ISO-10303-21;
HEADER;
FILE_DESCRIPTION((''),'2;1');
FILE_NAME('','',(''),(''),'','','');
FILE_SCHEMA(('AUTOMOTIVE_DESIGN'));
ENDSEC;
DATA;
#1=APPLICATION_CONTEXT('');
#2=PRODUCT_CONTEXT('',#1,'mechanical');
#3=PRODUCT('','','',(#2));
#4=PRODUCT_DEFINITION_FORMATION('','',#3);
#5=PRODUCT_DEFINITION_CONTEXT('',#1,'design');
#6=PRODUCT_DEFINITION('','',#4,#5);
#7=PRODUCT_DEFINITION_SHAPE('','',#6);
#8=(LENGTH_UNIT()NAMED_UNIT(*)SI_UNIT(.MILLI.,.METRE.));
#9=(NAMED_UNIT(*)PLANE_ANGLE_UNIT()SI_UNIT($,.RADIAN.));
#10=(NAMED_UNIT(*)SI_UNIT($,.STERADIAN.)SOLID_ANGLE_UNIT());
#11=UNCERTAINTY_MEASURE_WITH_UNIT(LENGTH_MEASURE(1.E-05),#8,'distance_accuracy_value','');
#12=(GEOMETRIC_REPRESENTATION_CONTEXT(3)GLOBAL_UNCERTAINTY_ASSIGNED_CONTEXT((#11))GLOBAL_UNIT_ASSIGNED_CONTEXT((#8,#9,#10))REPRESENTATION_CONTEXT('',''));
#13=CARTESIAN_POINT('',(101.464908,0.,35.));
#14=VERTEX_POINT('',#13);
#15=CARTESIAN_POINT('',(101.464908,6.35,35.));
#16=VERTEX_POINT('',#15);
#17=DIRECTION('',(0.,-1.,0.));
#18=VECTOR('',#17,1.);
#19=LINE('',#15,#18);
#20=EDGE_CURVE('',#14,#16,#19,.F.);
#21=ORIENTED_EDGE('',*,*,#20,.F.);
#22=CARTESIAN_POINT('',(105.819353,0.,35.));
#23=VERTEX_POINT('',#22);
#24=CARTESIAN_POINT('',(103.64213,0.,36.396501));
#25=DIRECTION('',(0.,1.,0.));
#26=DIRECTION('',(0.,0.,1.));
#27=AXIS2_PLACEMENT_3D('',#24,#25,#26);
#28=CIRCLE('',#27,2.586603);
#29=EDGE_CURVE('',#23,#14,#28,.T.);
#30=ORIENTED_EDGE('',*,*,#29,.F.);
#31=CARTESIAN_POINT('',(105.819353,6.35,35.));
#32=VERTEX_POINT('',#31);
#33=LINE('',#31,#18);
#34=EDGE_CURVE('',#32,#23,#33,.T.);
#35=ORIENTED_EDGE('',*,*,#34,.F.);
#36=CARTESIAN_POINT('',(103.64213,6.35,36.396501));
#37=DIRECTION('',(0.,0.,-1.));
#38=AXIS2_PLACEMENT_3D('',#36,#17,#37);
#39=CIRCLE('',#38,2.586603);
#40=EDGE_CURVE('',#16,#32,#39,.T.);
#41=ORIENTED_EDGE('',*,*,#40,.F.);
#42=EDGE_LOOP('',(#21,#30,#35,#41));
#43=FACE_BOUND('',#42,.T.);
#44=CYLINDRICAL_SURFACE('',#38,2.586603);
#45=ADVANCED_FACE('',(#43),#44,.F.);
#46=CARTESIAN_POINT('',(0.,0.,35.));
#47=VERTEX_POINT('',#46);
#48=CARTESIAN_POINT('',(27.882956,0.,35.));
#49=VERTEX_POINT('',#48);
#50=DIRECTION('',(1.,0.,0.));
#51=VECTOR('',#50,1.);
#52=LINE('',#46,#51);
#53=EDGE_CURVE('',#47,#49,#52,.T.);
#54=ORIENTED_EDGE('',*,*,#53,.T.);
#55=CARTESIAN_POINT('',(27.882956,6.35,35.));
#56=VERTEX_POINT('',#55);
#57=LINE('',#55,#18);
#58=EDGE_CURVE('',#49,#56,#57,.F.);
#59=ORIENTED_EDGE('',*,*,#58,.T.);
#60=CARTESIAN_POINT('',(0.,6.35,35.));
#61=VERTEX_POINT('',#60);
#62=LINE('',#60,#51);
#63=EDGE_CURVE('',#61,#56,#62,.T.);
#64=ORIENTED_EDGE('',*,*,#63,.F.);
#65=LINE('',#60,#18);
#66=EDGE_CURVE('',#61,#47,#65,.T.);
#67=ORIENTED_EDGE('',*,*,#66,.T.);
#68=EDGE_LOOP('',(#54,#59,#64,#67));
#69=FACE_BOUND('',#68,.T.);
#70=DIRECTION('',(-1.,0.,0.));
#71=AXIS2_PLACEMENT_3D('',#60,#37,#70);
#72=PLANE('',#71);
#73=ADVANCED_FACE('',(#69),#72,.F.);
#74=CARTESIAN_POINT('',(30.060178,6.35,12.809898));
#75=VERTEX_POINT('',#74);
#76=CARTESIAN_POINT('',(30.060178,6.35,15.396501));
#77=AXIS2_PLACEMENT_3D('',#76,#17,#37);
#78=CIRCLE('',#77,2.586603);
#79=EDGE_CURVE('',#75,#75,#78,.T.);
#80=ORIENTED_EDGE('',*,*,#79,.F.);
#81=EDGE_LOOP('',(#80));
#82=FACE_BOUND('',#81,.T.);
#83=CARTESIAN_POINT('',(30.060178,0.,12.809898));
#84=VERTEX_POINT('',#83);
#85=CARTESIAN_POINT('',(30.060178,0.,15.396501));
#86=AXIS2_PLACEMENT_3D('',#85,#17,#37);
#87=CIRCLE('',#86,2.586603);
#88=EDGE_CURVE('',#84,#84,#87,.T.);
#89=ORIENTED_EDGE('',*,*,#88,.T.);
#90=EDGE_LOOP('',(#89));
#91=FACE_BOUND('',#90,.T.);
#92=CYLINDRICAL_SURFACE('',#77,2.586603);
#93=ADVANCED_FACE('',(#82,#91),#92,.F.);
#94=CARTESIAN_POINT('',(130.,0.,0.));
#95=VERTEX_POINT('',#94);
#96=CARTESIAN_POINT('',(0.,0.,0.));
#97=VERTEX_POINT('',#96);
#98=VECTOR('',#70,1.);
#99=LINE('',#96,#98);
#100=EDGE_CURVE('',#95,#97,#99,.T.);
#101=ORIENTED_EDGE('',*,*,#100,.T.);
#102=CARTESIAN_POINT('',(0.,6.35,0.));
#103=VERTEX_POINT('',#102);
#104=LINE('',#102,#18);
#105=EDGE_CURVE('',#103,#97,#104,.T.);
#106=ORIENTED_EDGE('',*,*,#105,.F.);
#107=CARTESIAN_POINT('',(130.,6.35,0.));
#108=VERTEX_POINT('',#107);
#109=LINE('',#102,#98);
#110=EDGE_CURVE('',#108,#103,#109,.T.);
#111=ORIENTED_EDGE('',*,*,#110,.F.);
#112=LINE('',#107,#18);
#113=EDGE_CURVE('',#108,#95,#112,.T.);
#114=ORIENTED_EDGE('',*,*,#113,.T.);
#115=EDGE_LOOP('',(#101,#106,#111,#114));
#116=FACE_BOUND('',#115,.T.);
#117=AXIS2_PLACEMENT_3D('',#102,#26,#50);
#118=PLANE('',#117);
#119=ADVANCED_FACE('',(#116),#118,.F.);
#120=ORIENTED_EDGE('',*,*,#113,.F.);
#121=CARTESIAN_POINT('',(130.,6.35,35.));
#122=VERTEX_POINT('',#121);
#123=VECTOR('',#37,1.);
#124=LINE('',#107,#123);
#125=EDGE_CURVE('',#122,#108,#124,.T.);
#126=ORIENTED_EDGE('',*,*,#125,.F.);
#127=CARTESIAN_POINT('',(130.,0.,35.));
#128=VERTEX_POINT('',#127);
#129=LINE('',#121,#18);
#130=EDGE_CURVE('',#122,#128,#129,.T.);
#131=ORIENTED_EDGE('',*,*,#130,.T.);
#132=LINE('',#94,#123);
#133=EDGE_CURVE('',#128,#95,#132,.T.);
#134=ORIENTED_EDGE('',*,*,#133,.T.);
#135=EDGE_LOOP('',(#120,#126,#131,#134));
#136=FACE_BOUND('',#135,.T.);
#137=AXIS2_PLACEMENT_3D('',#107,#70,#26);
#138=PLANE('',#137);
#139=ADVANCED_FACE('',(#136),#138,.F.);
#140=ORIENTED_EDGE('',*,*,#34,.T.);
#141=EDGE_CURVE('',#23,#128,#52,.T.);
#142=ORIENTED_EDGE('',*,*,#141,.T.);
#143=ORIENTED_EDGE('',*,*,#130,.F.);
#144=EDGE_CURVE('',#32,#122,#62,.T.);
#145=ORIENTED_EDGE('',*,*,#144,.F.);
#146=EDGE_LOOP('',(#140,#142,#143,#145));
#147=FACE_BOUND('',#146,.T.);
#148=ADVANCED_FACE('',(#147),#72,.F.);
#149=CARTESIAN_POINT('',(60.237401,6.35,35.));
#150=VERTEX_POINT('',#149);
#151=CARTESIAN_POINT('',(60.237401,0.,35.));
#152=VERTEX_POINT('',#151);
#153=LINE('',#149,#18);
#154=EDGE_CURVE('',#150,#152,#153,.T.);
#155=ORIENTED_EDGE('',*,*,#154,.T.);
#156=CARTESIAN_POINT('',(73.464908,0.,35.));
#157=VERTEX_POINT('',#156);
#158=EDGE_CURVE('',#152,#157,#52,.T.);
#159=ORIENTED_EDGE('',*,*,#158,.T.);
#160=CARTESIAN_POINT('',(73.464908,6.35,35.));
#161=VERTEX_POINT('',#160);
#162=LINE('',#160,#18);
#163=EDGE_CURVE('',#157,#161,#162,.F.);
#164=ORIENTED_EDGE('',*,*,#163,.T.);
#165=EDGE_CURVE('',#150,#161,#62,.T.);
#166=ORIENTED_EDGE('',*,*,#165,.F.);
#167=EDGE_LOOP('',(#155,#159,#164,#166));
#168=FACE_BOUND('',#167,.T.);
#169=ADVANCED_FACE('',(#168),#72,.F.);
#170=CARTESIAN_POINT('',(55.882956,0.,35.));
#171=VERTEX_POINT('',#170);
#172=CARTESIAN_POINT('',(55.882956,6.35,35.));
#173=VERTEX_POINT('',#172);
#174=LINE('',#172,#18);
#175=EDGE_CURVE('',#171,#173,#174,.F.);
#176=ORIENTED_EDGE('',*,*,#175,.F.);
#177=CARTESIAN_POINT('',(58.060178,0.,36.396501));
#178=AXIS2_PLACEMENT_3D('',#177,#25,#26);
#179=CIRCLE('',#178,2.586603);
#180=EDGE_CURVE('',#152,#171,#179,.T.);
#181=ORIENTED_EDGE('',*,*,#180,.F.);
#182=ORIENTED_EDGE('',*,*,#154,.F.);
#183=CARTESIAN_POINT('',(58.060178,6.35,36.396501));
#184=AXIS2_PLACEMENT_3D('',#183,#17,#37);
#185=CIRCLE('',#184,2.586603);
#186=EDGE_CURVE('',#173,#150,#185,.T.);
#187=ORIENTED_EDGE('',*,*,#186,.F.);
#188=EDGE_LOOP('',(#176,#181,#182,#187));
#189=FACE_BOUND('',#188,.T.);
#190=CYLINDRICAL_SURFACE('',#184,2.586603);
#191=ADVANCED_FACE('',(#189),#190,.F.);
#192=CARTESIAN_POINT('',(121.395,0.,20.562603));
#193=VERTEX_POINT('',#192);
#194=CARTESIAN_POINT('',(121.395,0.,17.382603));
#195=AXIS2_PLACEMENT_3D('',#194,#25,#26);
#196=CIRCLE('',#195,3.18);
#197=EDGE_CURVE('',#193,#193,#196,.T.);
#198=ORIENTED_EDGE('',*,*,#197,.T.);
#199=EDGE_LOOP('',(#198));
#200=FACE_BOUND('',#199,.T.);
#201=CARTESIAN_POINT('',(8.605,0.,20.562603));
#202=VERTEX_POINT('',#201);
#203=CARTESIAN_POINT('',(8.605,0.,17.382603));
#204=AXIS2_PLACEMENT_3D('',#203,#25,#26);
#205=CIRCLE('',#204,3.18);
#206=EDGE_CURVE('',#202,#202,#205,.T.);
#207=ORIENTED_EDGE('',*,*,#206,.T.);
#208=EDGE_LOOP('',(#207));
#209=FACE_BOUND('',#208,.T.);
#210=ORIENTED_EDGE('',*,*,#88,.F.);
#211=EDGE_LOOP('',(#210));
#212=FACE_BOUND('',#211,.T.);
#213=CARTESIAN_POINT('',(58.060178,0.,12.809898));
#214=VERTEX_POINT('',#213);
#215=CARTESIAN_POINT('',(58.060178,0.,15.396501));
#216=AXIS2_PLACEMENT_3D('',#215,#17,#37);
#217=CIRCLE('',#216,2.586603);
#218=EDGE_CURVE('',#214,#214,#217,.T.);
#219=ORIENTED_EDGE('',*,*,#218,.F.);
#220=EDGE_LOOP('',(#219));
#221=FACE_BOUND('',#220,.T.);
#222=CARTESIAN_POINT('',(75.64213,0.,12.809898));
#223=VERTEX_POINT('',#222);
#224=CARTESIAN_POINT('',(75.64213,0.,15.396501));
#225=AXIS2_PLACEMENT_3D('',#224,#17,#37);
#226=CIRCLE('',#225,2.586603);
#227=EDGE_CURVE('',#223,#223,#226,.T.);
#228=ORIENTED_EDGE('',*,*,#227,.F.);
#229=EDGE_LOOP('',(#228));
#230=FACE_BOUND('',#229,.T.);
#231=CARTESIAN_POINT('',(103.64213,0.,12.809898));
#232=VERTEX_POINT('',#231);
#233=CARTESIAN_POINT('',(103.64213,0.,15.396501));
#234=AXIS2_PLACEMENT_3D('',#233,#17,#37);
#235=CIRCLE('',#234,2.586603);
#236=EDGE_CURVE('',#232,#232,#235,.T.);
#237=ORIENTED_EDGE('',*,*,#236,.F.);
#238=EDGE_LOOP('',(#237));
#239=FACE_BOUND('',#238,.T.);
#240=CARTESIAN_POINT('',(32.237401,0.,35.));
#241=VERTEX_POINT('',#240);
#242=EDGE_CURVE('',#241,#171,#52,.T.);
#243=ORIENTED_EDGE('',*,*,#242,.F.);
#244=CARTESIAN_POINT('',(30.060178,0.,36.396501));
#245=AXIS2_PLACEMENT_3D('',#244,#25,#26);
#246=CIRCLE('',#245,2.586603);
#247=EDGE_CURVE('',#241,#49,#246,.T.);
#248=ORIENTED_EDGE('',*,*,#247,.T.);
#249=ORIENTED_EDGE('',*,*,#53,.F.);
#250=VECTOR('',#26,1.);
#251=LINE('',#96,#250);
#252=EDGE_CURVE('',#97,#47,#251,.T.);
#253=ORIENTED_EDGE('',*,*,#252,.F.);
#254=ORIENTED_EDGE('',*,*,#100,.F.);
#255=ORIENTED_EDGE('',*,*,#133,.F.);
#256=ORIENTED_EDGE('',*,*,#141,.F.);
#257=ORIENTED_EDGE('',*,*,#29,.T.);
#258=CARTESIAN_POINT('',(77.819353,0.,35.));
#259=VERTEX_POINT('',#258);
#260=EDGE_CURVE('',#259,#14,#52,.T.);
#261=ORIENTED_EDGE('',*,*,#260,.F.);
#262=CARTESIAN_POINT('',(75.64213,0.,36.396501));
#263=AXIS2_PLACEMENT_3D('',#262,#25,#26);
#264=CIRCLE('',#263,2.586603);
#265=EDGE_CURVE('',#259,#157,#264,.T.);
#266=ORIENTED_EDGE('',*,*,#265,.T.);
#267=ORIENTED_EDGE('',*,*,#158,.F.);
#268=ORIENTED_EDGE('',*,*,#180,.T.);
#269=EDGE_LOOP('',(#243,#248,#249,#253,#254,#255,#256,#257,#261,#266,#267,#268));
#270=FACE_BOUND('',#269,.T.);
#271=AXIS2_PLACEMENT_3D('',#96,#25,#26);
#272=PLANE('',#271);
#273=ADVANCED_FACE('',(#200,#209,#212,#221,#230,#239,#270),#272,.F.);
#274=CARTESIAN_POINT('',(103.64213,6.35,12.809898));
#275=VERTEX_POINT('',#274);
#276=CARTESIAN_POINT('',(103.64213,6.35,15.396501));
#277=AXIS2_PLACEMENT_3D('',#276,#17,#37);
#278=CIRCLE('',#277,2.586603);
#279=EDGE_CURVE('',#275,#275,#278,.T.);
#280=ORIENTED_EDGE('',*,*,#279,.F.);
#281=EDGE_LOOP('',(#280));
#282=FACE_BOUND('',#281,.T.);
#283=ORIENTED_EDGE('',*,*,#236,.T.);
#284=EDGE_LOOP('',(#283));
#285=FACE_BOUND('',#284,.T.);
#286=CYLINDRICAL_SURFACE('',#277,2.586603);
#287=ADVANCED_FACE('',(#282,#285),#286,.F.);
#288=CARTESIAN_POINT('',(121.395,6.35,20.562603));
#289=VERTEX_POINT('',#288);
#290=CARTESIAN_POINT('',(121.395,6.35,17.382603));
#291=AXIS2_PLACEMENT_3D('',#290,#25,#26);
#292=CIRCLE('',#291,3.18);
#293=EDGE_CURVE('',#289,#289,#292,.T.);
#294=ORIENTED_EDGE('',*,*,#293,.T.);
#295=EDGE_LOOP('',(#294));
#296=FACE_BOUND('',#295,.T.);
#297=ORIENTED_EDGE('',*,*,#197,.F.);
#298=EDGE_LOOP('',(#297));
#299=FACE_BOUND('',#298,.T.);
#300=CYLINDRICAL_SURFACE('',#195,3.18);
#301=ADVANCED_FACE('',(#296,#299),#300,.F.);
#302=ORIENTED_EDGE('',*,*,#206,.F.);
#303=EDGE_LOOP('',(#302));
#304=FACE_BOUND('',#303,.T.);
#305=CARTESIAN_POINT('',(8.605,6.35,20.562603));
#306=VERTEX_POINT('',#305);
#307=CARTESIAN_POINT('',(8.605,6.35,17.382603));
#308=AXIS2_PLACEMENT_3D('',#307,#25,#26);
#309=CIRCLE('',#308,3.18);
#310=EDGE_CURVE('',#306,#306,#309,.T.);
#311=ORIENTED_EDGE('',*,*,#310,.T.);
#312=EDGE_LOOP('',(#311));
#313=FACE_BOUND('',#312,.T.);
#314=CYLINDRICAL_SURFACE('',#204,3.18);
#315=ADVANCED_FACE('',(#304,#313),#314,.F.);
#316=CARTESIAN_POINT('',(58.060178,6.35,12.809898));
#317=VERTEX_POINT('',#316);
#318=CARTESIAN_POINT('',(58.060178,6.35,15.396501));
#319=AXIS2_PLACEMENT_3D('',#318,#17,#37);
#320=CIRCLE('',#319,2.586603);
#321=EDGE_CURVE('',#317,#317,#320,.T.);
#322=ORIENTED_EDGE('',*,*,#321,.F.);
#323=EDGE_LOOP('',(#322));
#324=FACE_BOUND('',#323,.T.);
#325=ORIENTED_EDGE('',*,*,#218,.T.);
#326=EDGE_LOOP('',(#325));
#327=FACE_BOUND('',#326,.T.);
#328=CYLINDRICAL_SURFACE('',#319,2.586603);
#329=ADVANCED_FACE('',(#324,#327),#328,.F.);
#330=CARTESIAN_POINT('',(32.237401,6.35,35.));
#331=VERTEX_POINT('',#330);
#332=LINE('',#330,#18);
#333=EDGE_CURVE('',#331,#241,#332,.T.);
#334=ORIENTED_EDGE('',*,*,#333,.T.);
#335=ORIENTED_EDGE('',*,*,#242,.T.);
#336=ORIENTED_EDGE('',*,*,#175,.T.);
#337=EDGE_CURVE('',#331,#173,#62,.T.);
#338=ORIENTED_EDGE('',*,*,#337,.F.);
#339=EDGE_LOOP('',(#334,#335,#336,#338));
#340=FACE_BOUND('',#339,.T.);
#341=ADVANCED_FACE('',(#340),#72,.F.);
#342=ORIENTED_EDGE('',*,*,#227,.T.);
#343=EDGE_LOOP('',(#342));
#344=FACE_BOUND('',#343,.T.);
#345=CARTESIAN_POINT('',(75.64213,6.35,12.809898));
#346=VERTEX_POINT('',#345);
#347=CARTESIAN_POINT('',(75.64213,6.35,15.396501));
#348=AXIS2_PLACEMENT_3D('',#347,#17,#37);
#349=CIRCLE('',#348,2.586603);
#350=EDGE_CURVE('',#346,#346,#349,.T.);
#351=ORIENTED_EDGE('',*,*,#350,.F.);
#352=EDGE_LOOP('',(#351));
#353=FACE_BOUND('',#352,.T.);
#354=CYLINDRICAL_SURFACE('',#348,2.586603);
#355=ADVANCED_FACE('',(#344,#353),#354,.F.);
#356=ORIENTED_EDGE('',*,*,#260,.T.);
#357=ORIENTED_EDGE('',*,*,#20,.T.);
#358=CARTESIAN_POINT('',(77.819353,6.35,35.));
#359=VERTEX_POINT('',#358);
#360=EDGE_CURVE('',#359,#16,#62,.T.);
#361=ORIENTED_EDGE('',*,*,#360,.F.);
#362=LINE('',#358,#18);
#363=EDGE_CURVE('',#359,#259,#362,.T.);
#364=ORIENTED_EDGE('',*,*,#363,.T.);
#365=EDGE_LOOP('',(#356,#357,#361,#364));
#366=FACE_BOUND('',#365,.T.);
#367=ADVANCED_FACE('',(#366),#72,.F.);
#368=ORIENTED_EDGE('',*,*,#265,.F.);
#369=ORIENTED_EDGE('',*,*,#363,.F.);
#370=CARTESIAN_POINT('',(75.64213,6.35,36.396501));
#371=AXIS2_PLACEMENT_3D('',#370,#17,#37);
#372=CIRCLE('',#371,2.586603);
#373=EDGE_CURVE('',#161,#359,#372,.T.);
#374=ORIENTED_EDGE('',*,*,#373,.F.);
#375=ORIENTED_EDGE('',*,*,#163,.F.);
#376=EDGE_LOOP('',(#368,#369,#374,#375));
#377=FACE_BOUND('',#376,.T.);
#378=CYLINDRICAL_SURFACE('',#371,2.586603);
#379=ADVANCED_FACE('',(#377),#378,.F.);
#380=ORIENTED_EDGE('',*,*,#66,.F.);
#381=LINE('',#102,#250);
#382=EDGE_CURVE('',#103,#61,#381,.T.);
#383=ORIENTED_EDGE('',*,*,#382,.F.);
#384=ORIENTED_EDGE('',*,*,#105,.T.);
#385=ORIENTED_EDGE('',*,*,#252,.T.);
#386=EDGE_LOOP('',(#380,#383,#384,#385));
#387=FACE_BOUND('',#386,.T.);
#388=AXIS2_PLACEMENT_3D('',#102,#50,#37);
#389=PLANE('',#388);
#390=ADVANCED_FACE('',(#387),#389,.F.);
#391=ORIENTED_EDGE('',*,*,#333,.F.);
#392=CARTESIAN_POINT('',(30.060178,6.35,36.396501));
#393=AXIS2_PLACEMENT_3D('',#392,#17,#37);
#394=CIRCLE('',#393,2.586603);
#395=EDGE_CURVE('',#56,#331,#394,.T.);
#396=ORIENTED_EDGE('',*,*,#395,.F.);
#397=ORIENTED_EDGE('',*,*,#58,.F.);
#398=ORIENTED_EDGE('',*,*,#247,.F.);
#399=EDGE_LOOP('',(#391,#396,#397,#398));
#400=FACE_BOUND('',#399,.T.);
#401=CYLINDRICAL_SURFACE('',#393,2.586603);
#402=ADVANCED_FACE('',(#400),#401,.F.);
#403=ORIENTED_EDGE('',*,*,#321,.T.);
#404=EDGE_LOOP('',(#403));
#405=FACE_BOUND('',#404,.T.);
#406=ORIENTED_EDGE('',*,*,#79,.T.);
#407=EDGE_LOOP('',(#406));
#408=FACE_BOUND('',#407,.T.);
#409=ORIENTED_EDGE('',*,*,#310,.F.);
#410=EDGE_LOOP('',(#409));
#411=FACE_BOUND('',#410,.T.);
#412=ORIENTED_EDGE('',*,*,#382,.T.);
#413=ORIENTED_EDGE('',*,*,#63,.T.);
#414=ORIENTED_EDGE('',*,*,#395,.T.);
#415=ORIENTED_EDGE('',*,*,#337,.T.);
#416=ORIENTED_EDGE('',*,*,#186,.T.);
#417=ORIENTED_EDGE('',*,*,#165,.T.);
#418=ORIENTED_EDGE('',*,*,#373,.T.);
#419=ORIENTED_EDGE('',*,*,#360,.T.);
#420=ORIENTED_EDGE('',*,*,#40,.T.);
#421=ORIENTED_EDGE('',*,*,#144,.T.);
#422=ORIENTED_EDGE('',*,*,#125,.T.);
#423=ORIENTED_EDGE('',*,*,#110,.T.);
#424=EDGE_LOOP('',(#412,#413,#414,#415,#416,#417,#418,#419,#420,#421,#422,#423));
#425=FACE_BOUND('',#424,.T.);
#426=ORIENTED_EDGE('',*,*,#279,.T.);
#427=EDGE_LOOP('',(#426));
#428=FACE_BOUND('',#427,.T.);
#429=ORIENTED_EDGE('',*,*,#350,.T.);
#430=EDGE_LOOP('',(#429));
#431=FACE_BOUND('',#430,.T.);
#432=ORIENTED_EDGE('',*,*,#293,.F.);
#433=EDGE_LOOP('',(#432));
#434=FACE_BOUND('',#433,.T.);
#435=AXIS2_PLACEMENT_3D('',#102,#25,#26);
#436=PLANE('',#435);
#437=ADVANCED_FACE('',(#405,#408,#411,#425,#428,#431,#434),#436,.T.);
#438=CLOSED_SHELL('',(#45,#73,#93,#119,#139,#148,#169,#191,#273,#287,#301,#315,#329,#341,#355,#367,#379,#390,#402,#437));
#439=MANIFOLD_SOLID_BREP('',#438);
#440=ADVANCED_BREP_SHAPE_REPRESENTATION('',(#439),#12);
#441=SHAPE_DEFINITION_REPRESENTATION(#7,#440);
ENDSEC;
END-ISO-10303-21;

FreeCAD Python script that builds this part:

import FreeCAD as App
import Part
import Sketcher
from FreeCAD import Vector


def add_polygon(sketch, points):
    """Adds a closed chain of lines whose ends are joined by coincident constraints."""
    first, n = sketch.GeometryCount, len(points)
    for a, b in zip(points, points[1:] + points[:1]):
        sketch.addGeometry(Part.LineSegment(App.Vector(*a, 0), App.Vector(*b, 0)), False)
    for i in range(n):
        sketch.addConstraint(Sketcher.Constraint("Coincident", first + i, 2, first + (i + 1) % n, 1))

doc = App.newDocument("Part")
body = doc.addObject("PartDesign::Body", "Body")

# Sketch on XZ plane
sketch1 = body.newObject("Sketcher::SketchObject", "Sketch")
sketch1.AttachmentSupport = (doc.getObject("XZ_Plane"), [""])
sketch1.MapMode = "FlatFace"
add_polygon(sketch1, [(0, 0), (0, 35), (130, 35), (130, 0)])  # lines 0-3
sketch1.addConstraint(Sketcher.Constraint("Vertical", 0))
sketch1.addConstraint(Sketcher.Constraint("Horizontal", 1))
sketch1.addConstraint(Sketcher.Constraint("Vertical", 2))
sketch1.addConstraint(Sketcher.Constraint("Horizontal", 3))
sketch1.addConstraint(Sketcher.Constraint("Coincident", 3, 2, -1, 1))
sketch1.addConstraint(Sketcher.Constraint("DistanceX", 1, 1, 1, 2, 130.0))
sketch1.addConstraint(Sketcher.Constraint("DistanceY", 0, 1, 0, 2, 35.0))
pad1 = body.newObject("PartDesign::Pad", "Pad")
pad1.Profile = sketch1
pad1.Length = 6.35
pad1.Reversed = True

# Sketch on XZ plane
sketch2 = body.newObject("Sketcher::SketchObject", "Sketch001")
sketch2.AttachmentSupport = (doc.getObject("XZ_Plane"), [""])
sketch2.MapMode = "FlatFace"
sketch2.AttachmentOffset = App.Placement(Vector(0, 0, -6.35), App.Rotation())
sketch2.addGeometry(Part.Circle(Vector(8.6, 17.4, 0), Vector(0, 0, 1), 3.2), False)
sketch2.addGeometry(Part.Circle(Vector(121.4, 17.4, 0), Vector(0, 0, 1), 3.2), False)
sketch2.addConstraint(Sketcher.Constraint("Equal", 0, 1))
sketch2.addConstraint(Sketcher.Constraint("Horizontal", 0, 3, 1, 3))
sketch2.addConstraint(Sketcher.Constraint("Diameter", 0, 6.36))
sketch2.addConstraint(Sketcher.Constraint("DistanceX", 0, 3, 1, 3, 112.79))
sketch2.addConstraint(Sketcher.Constraint("DistanceX", -1, 1, 0, 3, 8.605))
sketch2.addConstraint(Sketcher.Constraint("DistanceY", -1, 1, 0, 3, 17.382603))
pocket1 = body.newObject("PartDesign::Pocket", "Pocket")
pocket1.Profile = sketch2
pocket1.Type = "ThroughAll"
pocket1.Reversed = True

# Sketch on XZ plane
sketch3 = body.newObject("Sketcher::SketchObject", "Sketch002")
sketch3.AttachmentSupport = (doc.getObject("XZ_Plane"), [""])
sketch3.MapMode = "FlatFace"
sketch3.addGeometry(Part.Circle(Vector(30.1, 15.4, 0), Vector(0, 0, 1), 2.6), False)
sketch3.addGeometry(Part.Circle(Vector(30.1, 36.4, 0), Vector(0, 0, 1), 2.6), False)
sketch3.addGeometry(Part.Circle(Vector(58.1, 36.4, 0), Vector(0, 0, 1), 2.6), False)
sketch3.addGeometry(Part.Circle(Vector(58.1, 15.4, 0), Vector(0, 0, 1), 2.6), False)
sketch3.addGeometry(Part.Circle(Vector(75.6, 15.4, 0), Vector(0, 0, 1), 2.6), False)
sketch3.addGeometry(Part.Circle(Vector(75.6, 36.4, 0), Vector(0, 0, 1), 2.6), False)
sketch3.addGeometry(Part.Circle(Vector(103.6, 15.4, 0), Vector(0, 0, 1), 2.6), False)
sketch3.addGeometry(Part.Circle(Vector(103.6, 36.4, 0), Vector(0, 0, 1), 2.6), False)
sketch3.addConstraint(Sketcher.Constraint("Equal", 0, 1))
sketch3.addConstraint(Sketcher.Constraint("Equal", 1, 2))
sketch3.addConstraint(Sketcher.Constraint("Equal", 2, 3))
sketch3.addConstraint(Sketcher.Constraint("Equal", 3, 4))
sketch3.addConstraint(Sketcher.Constraint("Equal", 4, 5))
sketch3.addConstraint(Sketcher.Constraint("Equal", 5, 6))
sketch3.addConstraint(Sketcher.Constraint("Equal", 6, 7))
sketch3.addConstraint(Sketcher.Constraint("Horizontal", 1, 3, 2, 3))
sketch3.addConstraint(Sketcher.Constraint("Horizontal", 0, 3, 3, 3))
sketch3.addConstraint(Sketcher.Constraint("Horizontal", 3, 3, 4, 3))
sketch3.addConstraint(Sketcher.Constraint("Horizontal", 2, 3, 5, 3))
sketch3.addConstraint(Sketcher.Constraint("Horizontal", 4, 3, 6, 3))
sketch3.addConstraint(Sketcher.Constraint("Horizontal", 5, 3, 7, 3))
sketch3.addConstraint(Sketcher.Constraint("Vertical", 0, 3, 1, 3))
sketch3.addConstraint(Sketcher.Constraint("Vertical", 2, 3, 3, 3))
sketch3.addConstraint(Sketcher.Constraint("Vertical", 4, 3, 5, 3))
sketch3.addConstraint(Sketcher.Constraint("Vertical", 6, 3, 7, 3))
sketch3.addConstraint(Sketcher.Constraint("DistanceY", 0, 3, 1, 3, 21.0))
sketch3.addConstraint(Sketcher.Constraint("DistanceX", 1, 3, 2, 3, 28.0))
sketch3.addConstraint(Sketcher.Constraint("DistanceX", 4, 3, 6, 3, 28.0))
sketch3.addConstraint(Sketcher.Constraint("Diameter", 0, 5.173205))
sketch3.addConstraint(Sketcher.Constraint("DistanceY", -1, 1, 0, 3, 15.396501))
sketch3.addConstraint(Sketcher.Constraint("DistanceX", -1, 1, 0, 3, 30.060178))
sketch3.addConstraint(Sketcher.Constraint("DistanceX", -1, 1, 4, 3, 75.64213))
pocket2 = body.newObject("PartDesign::Pocket", "Pocket001")
pocket2.Profile = sketch3
pocket2.Type = "ThroughAll"

doc.recompute()
